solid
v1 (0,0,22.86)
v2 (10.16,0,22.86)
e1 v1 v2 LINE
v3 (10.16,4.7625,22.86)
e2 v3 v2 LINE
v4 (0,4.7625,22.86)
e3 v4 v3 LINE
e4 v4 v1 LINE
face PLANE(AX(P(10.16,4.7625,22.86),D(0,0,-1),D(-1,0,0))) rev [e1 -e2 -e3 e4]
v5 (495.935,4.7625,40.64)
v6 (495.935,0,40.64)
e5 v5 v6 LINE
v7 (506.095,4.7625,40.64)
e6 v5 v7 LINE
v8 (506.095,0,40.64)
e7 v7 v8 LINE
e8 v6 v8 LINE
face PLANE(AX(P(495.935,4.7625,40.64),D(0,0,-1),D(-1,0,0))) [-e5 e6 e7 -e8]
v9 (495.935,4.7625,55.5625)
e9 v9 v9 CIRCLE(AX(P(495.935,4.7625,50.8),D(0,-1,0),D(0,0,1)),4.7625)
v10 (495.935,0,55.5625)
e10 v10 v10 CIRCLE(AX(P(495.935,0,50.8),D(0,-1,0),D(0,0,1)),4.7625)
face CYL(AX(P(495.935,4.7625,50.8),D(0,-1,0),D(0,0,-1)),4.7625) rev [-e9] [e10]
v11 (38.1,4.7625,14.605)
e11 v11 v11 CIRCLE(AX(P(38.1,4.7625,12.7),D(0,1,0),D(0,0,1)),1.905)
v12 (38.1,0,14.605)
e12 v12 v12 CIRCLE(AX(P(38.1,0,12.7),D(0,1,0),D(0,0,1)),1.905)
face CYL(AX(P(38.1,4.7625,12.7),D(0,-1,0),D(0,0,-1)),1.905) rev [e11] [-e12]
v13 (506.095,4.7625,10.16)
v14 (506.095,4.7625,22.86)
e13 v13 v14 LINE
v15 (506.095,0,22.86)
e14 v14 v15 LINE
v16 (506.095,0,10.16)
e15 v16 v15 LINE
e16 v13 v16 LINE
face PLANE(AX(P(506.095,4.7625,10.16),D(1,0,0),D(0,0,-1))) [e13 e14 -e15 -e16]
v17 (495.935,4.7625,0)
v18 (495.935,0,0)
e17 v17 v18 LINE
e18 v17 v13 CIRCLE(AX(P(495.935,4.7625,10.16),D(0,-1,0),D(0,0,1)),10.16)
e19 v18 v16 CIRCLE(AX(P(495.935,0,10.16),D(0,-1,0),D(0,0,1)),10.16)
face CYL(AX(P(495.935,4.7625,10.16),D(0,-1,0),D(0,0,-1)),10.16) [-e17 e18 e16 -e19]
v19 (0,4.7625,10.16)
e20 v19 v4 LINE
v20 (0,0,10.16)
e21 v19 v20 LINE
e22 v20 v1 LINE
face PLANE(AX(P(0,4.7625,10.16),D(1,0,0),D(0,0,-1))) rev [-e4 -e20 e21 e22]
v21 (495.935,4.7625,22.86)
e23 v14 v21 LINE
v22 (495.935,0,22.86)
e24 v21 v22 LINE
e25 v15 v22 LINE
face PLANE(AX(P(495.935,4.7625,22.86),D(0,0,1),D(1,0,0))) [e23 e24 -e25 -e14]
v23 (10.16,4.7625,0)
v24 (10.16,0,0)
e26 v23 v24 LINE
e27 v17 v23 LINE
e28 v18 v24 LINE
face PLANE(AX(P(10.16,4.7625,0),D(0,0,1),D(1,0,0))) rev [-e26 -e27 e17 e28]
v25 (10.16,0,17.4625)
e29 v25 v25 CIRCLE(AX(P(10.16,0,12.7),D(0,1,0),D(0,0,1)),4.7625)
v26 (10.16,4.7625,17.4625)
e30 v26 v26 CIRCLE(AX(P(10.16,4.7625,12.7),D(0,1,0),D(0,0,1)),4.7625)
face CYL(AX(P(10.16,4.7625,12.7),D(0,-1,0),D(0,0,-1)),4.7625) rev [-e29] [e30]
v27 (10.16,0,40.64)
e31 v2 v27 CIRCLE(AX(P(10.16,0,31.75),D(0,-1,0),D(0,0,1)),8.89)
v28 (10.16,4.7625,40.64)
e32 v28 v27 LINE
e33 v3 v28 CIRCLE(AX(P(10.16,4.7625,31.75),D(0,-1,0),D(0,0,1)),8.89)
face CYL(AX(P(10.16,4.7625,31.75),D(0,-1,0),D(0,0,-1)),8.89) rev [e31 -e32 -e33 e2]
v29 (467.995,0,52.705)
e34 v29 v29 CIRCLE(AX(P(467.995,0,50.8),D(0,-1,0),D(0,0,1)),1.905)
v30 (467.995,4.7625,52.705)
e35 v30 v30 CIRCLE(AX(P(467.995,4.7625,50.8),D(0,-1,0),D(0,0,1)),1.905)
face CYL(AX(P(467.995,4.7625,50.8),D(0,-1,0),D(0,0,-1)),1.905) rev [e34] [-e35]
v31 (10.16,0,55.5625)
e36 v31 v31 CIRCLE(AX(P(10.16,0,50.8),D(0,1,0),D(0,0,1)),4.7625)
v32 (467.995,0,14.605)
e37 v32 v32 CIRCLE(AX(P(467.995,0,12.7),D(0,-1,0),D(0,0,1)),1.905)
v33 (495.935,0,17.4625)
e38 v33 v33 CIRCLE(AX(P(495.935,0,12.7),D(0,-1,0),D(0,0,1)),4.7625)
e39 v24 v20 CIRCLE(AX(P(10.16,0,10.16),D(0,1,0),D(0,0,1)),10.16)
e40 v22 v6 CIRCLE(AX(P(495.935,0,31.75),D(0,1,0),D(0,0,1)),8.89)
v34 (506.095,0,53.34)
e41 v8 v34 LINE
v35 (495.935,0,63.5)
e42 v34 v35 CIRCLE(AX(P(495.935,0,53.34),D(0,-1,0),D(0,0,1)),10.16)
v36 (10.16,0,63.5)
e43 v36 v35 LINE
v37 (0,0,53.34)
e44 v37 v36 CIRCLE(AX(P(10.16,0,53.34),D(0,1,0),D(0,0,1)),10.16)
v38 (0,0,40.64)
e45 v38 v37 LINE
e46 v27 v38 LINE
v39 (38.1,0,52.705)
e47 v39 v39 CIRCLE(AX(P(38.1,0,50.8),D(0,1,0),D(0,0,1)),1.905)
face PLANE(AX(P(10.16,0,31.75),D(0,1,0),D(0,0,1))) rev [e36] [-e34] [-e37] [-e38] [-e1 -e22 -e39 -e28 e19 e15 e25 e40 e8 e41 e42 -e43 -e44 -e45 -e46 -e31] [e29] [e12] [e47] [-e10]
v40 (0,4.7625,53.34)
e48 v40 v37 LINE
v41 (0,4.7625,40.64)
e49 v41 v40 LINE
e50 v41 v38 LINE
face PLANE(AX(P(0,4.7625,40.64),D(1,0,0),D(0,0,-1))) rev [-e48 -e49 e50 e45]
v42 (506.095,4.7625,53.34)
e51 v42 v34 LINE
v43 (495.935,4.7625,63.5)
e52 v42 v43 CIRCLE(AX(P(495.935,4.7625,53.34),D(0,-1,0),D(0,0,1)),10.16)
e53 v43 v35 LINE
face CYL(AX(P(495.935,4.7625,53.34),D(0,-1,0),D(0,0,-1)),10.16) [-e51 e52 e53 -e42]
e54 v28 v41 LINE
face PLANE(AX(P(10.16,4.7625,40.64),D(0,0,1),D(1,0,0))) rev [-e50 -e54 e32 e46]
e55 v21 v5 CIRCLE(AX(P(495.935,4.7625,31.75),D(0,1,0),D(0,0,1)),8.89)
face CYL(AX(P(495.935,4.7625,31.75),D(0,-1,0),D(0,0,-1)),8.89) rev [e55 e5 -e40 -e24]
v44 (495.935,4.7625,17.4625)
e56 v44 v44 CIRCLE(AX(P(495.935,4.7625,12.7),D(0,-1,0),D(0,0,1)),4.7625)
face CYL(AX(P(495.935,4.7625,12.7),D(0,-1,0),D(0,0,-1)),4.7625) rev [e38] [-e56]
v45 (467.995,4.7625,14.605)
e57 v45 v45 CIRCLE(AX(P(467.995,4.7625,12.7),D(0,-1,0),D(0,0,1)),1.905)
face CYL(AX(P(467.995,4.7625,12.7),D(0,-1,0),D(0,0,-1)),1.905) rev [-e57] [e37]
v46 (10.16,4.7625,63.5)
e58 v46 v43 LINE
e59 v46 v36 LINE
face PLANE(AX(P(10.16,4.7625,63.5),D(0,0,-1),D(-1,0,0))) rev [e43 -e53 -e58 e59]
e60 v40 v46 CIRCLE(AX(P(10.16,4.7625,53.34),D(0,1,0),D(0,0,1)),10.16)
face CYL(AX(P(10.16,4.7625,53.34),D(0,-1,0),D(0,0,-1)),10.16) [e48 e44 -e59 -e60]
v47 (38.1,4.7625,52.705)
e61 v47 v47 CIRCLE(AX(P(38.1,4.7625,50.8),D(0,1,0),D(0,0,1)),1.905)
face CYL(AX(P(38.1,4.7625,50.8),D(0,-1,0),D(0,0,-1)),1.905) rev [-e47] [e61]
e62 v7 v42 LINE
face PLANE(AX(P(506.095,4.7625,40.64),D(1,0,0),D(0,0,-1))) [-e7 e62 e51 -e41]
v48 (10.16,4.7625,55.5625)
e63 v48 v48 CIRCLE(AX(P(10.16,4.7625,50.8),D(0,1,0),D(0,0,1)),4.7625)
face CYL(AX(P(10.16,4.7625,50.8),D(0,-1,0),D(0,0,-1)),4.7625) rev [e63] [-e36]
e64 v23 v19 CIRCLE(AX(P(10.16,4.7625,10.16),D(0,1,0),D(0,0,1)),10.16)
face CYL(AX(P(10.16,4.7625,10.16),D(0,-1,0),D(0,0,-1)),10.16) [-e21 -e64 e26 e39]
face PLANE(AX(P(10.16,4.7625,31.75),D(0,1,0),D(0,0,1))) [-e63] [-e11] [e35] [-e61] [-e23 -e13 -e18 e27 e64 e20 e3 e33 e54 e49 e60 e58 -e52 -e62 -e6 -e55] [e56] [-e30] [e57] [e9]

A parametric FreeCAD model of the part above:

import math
import FreeCAD as App
import Part
import Sketcher
from FreeCAD import Vector
Q = App.Units.Quantity

doc = App.newDocument("Part")
body = doc.addObject("PartDesign::Body", "Body")

sketch1 = doc.addObject("Sketcher::SketchObject", "Sketch")
body.addObject(sketch1)
sketch1.AttachmentSupport = (doc.XZ_Plane, [""])
sketch1.MapMode = "FlatFace"
sketch1.addGeometry(Part.LineSegment(Vector(253, 0, 0), Vector(10.2, 0, 0)), False)
sketch1.addGeometry(Part.ArcOfCircle(Part.Circle(Vector(10.2, 10.2, 0), Vector(0, 0, 1), 10.2), math.radians(180), math.radians(270)), False)
sketch1.addGeometry(Part.LineSegment(Vector(0, 10.2, 0), Vector(0, 22.9, 0)), False)
sketch1.addGeometry(Part.LineSegment(Vector(0, 22.9, 0), Vector(10.2, 22.9, 0)), False)
sketch1.addGeometry(Part.ArcOfCircle(Part.Circle(Vector(10.2, 31.8, 0), Vector(0, 0, 1), 8.9), math.radians(-90), math.radians(90)), False)
sketch1.addGeometry(Part.LineSegment(Vector(10.2, 40.6, 0), Vector(0, 40.6, 0)), False)
sketch1.addGeometry(Part.LineSegment(Vector(0, 40.6, 0), Vector(0, 53.3, 0)), False)
sketch1.addGeometry(Part.ArcOfCircle(Part.Circle(Vector(10.2, 53.3, 0), Vector(0, 0, 1), 10.2), math.radians(90), math.radians(180)), False)
sketch1.addGeometry(Part.LineSegment(Vector(10.2, 63.5, 0), Vector(253, 63.5, 0)), False)
sketch1.addGeometry(Part.LineSegment(Vector(253, 63.5, 0), Vector(253, 0, 0)), False)
sketch1.addGeometry(Part.Circle(Vector(38.1, 50.8, 0), Vector(0, 0, 1), 1.9), False)
sketch1.addGeometry(Part.Circle(Vector(10.2, 50.8, 0), Vector(0, 0, 1), 4.8), False)
sketch1.addGeometry(Part.Circle(Vector(38.1, 12.7, 0), Vector(0, 0, 1), 1.9), False)
sketch1.addGeometry(Part.Circle(Vector(10.2, 12.7, 0), Vector(0, 0, 1), 4.8), False)
sketch1.addConstraint(Sketcher.Constraint("Tangent", 0, 2, 1, 2))
sketch1.addConstraint(Sketcher.Constraint("Tangent", 1, 1, 2, 1))
sketch1.addConstraint(Sketcher.Constraint("Coincident", 2, 2, 3, 1))
sketch1.addConstraint(Sketcher.Constraint("Tangent", 3, 2, 4, 1))
sketch1.addConstraint(Sketcher.Constraint("Tangent", 4, 2, 5, 1))
sketch1.addConstraint(Sketcher.Constraint("Coincident", 5, 2, 6, 1))
sketch1.addConstraint(Sketcher.Constraint("Tangent", 6, 2, 7, 2))
sketch1.addConstraint(Sketcher.Constraint("Tangent", 7, 1, 8, 1))
sketch1.addConstraint(Sketcher.Constraint("Coincident", 8, 2, 9, 1))
sketch1.addConstraint(Sketcher.Constraint("Coincident", 9, 2, 0, 1))
sketch1.addConstraint(Sketcher.Constraint("Horizontal", 0))
sketch1.addConstraint(Sketcher.Constraint("Vertical", 2))
sketch1.addConstraint(Sketcher.Constraint("Horizontal", 3))
sketch1.addConstraint(Sketcher.Constraint("Horizontal", 5))
sketch1.addConstraint(Sketcher.Constraint("Vertical", 6))
sketch1.addConstraint(Sketcher.Constraint("Horizontal", 8))
sketch1.addConstraint(Sketcher.Constraint("Vertical", 9))
sketch1.addConstraint(Sketcher.Constraint("Equal", 1, 7))
sketch1.addConstraint(Sketcher.Constraint("Equal", 10, 12))
sketch1.addConstraint(Sketcher.Constraint("Equal", 11, 13))
sketch1.addConstraint(Sketcher.Constraint("PointOnObject", 0, 2, -1))
sketch1.addConstraint(Sketcher.Constraint("PointOnObject", 1, 1, -2))
sketch1.addConstraint(Sketcher.Constraint("PointOnObject", 5, 2, -2))
sketch1.addConstraint(Sketcher.Constraint("Horizontal", 10, 3, 11, 3))
sketch1.addConstraint(Sketcher.Constraint("Horizontal", 12, 3, 13, 3))
sketch1.addConstraint(Sketcher.Constraint("Vertical", 1, 3, 4, 3))
sketch1.addConstraint(Sketcher.Constraint("Vertical", 7, 3, 11, 3))
sketch1.addConstraint(Sketcher.Constraint("Vertical", 10, 3, 12, 3))
sketch1.addConstraint(Sketcher.Constraint("Vertical", 11, 3, 13, 3))
sketch1.addConstraint(Sketcher.Constraint("Equal", 2, 6))
sketch1.addConstraint(Sketcher.Constraint("Radius", 1, Q("0.4 in")))
sketch1.addConstraint(Sketcher.Constraint("Diameter", 10, Q("0.15 in")))
sketch1.addConstraint(Sketcher.Constraint("Radius", 4, Q("0.35 in")))
sketch1.addConstraint(Sketcher.Constraint("Diameter", 11, Q("0.375 in")))
sketch1.addConstraint(Sketcher.Constraint("DistanceY", 2, 1, 2, 2, Q("0.5 in")))
sketch1.addConstraint(Sketcher.Constraint("DistanceY", -1, 1, 10, 3, Q("2 in")))
sketch1.addConstraint(Sketcher.Constraint("DistanceY", 12, 3, 8, 2, Q("2 in")))
sketch1.addConstraint(Sketcher.Constraint("DistanceX", -1, 1, 10, 3, Q("1.5 in")))
sketch1.addConstraint(Sketcher.Constraint("DistanceX", 0, 2, 0, 1, Q("9.5625 in")))
pad1 = doc.addObject("PartDesign::Pad", "Pad")
body.addObject(pad1)
pad1.Profile = sketch1
pad1.Length = Q("0.1875 in")
pad1.Reversed = True
doc.recompute()

datumplane = doc.addObject("PartDesign::Plane", "DatumPlane")
body.addObject(datumplane)
datumplane.AttachmentSupport = (doc.YZ_Plane, [""])
datumplane.MapMode = "FlatFace"
datumplane.AttachmentOffset = App.Placement(Vector(0, 0, 9.9625 * 25.4), App.Rotation())
mirrored = doc.addObject("PartDesign::Mirrored", "Mirrored")
body.addObject(mirrored)
mirrored.Originals = [pad1]
mirrored.MirrorPlane = (datumplane, [""])
body.Tip = mirrored

doc.recompute()
